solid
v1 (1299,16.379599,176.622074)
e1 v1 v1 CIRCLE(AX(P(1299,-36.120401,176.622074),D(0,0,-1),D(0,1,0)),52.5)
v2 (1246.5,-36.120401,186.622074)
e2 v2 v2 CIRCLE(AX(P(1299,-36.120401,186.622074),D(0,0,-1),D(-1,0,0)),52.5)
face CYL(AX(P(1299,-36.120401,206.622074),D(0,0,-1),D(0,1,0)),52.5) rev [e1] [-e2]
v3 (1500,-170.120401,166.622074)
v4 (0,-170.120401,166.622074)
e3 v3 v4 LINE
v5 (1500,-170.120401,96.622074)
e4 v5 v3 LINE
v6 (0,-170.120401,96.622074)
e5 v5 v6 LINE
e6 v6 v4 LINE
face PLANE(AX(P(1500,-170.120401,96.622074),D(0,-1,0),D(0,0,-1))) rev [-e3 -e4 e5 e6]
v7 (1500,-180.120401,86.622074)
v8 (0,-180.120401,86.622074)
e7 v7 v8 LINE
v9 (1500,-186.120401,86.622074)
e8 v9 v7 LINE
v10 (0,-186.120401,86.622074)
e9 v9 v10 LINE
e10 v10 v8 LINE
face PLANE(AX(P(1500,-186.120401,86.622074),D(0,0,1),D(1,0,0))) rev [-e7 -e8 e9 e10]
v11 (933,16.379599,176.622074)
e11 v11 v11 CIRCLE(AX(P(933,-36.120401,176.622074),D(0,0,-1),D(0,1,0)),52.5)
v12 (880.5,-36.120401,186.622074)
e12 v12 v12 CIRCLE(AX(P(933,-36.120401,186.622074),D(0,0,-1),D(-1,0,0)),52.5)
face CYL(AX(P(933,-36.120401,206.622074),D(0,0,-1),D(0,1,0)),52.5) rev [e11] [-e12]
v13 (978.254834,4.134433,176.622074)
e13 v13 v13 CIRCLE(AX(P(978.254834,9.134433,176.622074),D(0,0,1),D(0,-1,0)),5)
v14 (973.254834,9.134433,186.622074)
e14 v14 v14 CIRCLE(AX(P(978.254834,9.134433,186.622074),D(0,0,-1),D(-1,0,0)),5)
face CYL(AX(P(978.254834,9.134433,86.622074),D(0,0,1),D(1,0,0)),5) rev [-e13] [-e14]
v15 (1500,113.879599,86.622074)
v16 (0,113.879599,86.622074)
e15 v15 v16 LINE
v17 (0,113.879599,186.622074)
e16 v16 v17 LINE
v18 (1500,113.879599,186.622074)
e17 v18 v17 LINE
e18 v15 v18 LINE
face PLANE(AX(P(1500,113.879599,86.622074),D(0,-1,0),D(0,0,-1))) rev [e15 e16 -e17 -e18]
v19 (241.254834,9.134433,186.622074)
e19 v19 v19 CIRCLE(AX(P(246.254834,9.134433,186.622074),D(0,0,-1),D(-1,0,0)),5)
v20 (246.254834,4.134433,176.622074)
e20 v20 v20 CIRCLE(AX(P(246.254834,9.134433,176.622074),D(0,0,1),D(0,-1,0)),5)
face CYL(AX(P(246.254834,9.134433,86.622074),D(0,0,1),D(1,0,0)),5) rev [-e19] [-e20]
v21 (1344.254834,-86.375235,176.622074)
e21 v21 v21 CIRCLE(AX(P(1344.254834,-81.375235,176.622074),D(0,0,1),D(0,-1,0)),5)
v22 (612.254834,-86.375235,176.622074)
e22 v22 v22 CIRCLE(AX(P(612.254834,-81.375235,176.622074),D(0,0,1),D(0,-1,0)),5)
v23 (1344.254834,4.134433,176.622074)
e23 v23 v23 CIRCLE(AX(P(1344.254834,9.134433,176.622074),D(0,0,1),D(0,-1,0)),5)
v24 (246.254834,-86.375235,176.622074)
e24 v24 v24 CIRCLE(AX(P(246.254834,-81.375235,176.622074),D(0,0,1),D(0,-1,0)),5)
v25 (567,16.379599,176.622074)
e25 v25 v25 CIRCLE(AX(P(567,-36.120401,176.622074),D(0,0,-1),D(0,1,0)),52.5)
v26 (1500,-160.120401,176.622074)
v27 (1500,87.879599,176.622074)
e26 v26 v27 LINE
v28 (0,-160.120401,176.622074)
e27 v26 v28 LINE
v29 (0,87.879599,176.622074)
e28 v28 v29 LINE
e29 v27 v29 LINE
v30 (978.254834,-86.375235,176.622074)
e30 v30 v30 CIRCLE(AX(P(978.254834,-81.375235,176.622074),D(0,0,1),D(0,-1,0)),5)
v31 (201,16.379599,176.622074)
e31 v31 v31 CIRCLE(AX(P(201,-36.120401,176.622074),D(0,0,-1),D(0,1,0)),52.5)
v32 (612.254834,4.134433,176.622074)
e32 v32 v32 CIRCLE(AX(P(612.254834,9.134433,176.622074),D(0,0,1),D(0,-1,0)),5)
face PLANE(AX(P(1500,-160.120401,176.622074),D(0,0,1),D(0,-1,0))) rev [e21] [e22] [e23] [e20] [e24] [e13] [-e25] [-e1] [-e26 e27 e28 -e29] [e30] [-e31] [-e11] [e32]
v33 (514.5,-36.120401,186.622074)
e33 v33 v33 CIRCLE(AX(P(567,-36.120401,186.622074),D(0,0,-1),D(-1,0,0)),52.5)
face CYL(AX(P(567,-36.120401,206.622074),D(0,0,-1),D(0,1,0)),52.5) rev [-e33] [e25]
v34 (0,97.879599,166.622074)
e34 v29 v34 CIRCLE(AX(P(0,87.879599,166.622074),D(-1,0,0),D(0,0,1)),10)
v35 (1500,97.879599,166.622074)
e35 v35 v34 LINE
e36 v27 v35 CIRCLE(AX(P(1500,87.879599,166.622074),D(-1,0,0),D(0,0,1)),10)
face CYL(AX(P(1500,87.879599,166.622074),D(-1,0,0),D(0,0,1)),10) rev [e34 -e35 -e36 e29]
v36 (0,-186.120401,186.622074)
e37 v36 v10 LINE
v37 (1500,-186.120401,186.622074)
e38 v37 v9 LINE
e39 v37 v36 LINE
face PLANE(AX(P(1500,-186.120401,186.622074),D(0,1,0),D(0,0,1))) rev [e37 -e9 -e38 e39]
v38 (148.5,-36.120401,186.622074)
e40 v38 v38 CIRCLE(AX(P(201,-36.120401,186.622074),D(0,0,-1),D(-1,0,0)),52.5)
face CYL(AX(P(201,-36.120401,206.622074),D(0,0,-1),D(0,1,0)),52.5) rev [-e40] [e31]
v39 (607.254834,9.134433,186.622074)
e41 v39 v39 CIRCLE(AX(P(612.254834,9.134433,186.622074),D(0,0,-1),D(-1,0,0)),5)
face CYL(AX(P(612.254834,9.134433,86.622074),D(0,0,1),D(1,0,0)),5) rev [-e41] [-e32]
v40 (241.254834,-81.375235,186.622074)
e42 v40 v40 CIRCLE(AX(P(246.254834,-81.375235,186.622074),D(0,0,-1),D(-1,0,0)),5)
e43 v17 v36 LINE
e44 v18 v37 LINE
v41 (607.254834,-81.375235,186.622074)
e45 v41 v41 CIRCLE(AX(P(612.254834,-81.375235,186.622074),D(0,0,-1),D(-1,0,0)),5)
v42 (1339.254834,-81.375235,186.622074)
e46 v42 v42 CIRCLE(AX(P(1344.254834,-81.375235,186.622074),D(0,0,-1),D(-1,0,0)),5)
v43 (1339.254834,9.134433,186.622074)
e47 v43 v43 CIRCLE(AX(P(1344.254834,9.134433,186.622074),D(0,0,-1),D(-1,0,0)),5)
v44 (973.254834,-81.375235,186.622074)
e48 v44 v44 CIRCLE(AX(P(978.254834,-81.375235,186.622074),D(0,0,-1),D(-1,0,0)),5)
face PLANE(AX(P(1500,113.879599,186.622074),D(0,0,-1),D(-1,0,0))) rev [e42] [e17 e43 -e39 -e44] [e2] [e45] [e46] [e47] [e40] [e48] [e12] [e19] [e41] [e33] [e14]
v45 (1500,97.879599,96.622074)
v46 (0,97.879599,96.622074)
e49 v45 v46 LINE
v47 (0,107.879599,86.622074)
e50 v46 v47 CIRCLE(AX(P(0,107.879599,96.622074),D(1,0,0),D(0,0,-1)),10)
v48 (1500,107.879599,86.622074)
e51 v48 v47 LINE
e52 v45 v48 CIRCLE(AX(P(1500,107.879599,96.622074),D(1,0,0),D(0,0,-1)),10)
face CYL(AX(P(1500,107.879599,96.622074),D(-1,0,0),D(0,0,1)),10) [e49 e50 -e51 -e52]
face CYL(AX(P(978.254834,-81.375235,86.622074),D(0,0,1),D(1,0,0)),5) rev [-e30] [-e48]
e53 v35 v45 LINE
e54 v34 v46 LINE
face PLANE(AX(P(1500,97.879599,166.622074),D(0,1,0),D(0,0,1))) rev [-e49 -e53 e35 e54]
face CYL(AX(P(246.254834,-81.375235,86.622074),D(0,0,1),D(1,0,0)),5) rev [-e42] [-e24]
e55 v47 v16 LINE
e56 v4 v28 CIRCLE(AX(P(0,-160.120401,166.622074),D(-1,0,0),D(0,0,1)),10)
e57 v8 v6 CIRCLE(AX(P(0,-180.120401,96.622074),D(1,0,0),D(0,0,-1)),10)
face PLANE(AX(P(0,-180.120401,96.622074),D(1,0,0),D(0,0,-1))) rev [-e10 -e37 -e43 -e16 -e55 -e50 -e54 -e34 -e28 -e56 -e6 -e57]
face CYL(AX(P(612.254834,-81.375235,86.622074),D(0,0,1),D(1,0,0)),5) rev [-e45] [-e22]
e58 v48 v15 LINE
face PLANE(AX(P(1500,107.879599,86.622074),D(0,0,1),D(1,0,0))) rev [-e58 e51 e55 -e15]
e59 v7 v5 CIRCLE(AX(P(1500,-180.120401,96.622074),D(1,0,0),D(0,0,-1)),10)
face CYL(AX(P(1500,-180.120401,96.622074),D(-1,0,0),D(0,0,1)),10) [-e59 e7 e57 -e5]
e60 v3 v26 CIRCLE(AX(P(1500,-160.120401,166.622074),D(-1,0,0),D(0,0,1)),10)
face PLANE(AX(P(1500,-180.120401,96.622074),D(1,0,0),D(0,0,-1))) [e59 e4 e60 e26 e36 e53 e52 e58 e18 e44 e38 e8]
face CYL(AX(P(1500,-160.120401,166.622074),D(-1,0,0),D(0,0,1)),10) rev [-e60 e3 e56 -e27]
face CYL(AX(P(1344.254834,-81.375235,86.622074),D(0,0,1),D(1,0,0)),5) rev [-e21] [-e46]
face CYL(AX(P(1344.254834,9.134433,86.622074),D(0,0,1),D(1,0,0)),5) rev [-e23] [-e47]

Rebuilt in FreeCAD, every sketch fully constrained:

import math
import FreeCAD as App
import Part
import Sketcher

doc = App.newDocument("Part")
body = doc.addObject("PartDesign::Body", "Body")

sketch1 = body.newObject("Sketcher::SketchObject", "Sketch")
sketch1.AttachmentSupport = (doc.getObject("YZ_Plane"), [""])
sketch1.MapMode = "FlatFace"
sketch1.addGeometry([
    Part.LineSegment(App.Vector(114, 87, 0), App.Vector(114, 187, 0)),
    Part.LineSegment(App.Vector(114, 187, 0), App.Vector(-186, 187, 0)),
    Part.LineSegment(App.Vector(-186, 187, 0), App.Vector(-186, 87, 0)),
    Part.LineSegment(App.Vector(-186, 87, 0), App.Vector(-180, 87, 0)),
    Part.ArcOfCircle(Part.Circle(App.Vector(-180, 97, 0), App.Vector(0, 0, 1), 10), math.radians(-90), math.radians(0)),
    Part.LineSegment(App.Vector(-170, 97, 0), App.Vector(-170, 167, 0)),
    Part.ArcOfCircle(Part.Circle(App.Vector(-160, 167, 0), App.Vector(0, 0, 1), 10), math.radians(90), math.radians(180)),
    Part.LineSegment(App.Vector(-160, 177, 0), App.Vector(88, 177, 0)),
    Part.ArcOfCircle(Part.Circle(App.Vector(88, 167, 0), App.Vector(0, 0, 1), 10), math.radians(0), math.radians(90)),
    Part.LineSegment(App.Vector(98, 167, 0), App.Vector(98, 97, 0)),
    Part.ArcOfCircle(Part.Circle(App.Vector(108, 97, 0), App.Vector(0, 0, 1), 10), math.radians(180), math.radians(270)),
    Part.LineSegment(App.Vector(108, 87, 0), App.Vector(114, 87, 0)),
], False)
sketch1.addConstraint([
    Sketcher.Constraint("Coincident", 0, 2, 1, 1),
    Sketcher.Constraint("Coincident", 1, 2, 2, 1),
    Sketcher.Constraint("Coincident", 2, 2, 3, 1),
    Sketcher.Constraint("Tangent", 3, 2, 4, 1),
    Sketcher.Constraint("Tangent", 4, 2, 5, 1),
    Sketcher.Constraint("Tangent", 5, 2, 6, 2),
    Sketcher.Constraint("Tangent", 6, 1, 7, 1),
    Sketcher.Constraint("Tangent", 7, 2, 8, 2),
    Sketcher.Constraint("Tangent", 8, 1, 9, 1),
    Sketcher.Constraint("Tangent", 9, 2, 10, 1),
    Sketcher.Constraint("Tangent", 10, 2, 11, 1),
    Sketcher.Constraint("Coincident", 11, 2, 0, 1),
    Sketcher.Constraint("Vertical", 0),
    Sketcher.Constraint("Horizontal", 1),
    Sketcher.Constraint("Vertical", 2),
    Sketcher.Constraint("Horizontal", 3),
    Sketcher.Constraint("Vertical", 5),
    Sketcher.Constraint("Horizontal", 7),
    Sketcher.Constraint("Vertical", 9),
    Sketcher.Constraint("Horizontal", 11),
    Sketcher.Constraint("Equal", 4, 6),
    Sketcher.Constraint("Equal", 6, 8),
    Sketcher.Constraint("Equal", 8, 10),
    Sketcher.Constraint("Horizontal", 4, 3, 10, 3),
    Sketcher.Constraint("Equal", 3, 11),
    Sketcher.Constraint("Radius", 4, 10.0),
    Sketcher.Constraint("DistanceX", 1, 2, 1, 1, 300.0),
    Sketcher.Constraint("DistanceX", 3, 1, 3, 2, 6.0),
    Sketcher.Constraint("DistanceY", 0, 1, 0, 2, 100.0),
    Sketcher.Constraint("DistanceY", 5, 1, 5, 2, 70.0),
    Sketcher.Constraint("DistanceX", 4, 3, -1, 1, 180.120401),
    Sketcher.Constraint("DistanceY", -1, 1, 4, 3, 96.622074),
])
pad1 = body.newObject("PartDesign::Pad", "Pad")
pad1.Profile = sketch1
pad1.Length = 1500

sketch2 = body.newObject("Sketcher::SketchObject", "Sketch001")
sketch2.AttachmentSupport = (doc.getObject("XY_Plane"), [""])
sketch2.MapMode = "FlatFace"
sketch2.AttachmentOffset = App.Placement(App.Vector(0, 0, 176.622074), App.Rotation())
sketch2.addGeometry(Part.Circle(App.Vector(1299, -36, 0), App.Vector(0, 0, 1), 52), False)
sketch2.addConstraint([
    Sketcher.Constraint("Diameter", 0, 105.0),
    Sketcher.Constraint("DistanceX", -1, 1, 0, 3, 1299.0),
    Sketcher.Constraint("DistanceY", 0, 3, -1, 1, 36.120401),
])
pocket1 = body.newObject("PartDesign::Pocket", "Pocket")
pocket1.Profile = sketch2
pocket1.Length = 30
pocket1.Reversed = True
doc.recompute()

linearpattern = body.newObject("PartDesign::LinearPattern", "LinearPattern")
linearpattern.Originals = [pocket1]
linearpattern.Direction = (doc.getObject("X_Axis"), [""])
linearpattern.Mode = "offset"
linearpattern.Offset = 366
linearpattern.Occurrences = 4
linearpattern.Reversed = True
body.Tip = linearpattern

sketch3 = body.newObject("Sketcher::SketchObject", "Sketch002")
sketch3.AttachmentSupport = (doc.getObject("XY_Plane"), [""])
sketch3.MapMode = "FlatFace"
sketch3.AttachmentOffset = App.Placement(App.Vector(0, 0, 186.622074), App.Rotation())
sketch3.addGeometry([
    Part.Circle(App.Vector(1344, 9, 0), App.Vector(0, 0, 1), 5),
    Part.Circle(App.Vector(1344, -81, 0), App.Vector(0, 0, 1), 5),
], False)
sketch3.addConstraint([
    Sketcher.Constraint("Equal", 0, 1),
    Sketcher.Constraint("Vertical", 0, 3, 1, 3),
    Sketcher.Constraint("Diameter", 0, 10.0),
    Sketcher.Constraint("DistanceX", -1, 1, 0, 3, 1344.254834),
    Sketcher.Constraint("DistanceY", -1, 1, 0, 3, 9.134433),
    Sketcher.Constraint("DistanceY", 1, 3, -1, 1, 81.375235),
])
pocket2 = body.newObject("PartDesign::Pocket", "Pocket001")
pocket2.Profile = sketch3
pocket2.Length = 3031.614367
pocket2.Midplane = True
doc.recompute()

linearpattern2 = body.newObject("PartDesign::LinearPattern", "LinearPattern001")
linearpattern2.Originals = [pocket2]
linearpattern2.Direction = (doc.getObject("X_Axis"), [""])
linearpattern2.Mode = "offset"
linearpattern2.Offset = 366
linearpattern2.Occurrences = 4
linearpattern2.Reversed = True
body.Tip = linearpattern2

doc.recompute()
